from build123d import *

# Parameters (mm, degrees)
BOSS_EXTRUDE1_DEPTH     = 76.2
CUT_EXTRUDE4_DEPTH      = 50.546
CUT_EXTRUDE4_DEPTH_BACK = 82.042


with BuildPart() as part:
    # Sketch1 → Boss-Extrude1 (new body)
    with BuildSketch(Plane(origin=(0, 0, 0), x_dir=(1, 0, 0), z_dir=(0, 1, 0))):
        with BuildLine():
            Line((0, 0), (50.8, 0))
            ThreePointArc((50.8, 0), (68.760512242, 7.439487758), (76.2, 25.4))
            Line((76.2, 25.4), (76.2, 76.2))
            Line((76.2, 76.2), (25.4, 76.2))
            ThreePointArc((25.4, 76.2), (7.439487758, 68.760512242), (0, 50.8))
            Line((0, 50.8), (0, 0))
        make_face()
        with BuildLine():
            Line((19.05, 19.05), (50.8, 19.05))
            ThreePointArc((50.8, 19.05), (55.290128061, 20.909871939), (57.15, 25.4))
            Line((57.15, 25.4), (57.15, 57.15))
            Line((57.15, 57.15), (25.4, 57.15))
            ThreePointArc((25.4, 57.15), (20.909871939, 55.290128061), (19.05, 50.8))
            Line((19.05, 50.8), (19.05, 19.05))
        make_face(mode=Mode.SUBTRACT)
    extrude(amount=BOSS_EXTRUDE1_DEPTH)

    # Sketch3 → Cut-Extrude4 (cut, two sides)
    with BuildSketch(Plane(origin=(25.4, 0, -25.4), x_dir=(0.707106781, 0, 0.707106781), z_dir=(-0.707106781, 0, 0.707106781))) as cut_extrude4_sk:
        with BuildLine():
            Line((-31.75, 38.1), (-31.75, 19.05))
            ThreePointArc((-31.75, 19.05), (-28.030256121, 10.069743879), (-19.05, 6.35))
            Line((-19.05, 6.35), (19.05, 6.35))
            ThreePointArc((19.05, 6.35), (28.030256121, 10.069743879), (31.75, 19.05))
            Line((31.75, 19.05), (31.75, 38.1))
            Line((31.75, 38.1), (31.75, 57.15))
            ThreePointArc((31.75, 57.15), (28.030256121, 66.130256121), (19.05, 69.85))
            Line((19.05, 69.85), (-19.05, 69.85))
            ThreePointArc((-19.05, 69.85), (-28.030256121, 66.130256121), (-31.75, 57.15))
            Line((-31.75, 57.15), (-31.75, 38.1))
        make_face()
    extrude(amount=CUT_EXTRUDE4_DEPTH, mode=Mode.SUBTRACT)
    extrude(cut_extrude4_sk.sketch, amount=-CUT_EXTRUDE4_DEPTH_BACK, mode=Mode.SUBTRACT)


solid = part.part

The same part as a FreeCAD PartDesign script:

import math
import FreeCAD as App
import Part
import Sketcher
from FreeCAD import Vector
Q = App.Units.Quantity

doc = App.newDocument("Part")
body = doc.addObject("PartDesign::Body", "Body")

# Sketch on XZ plane
sketch1 = body.newObject("Sketcher::SketchObject", "Sketch")
sketch1.AttachmentSupport = (doc.getObject("XZ_Plane"), [""])
sketch1.MapMode = "FlatFace"
sketch1.addGeometry([
    Part.LineSegment(Vector(0, 0, 0), Vector(51, 0, 0)),  # 0
    Part.ArcOfCircle(Part.Circle(Vector(51, -25, 0), Vector(0, 0, 1), 25), math.radians(0), math.radians(90)),  # 1
    Part.LineSegment(Vector(76, -25, 0), Vector(76, -76, 0)),  # 2
    Part.LineSegment(Vector(76, -76, 0), Vector(25, -76, 0)),  # 3
    Part.ArcOfCircle(Part.Circle(Vector(25, -51, 0), Vector(0, 0, 1), 25), math.radians(180), math.radians(270)),  # 4
    Part.LineSegment(Vector(0, -51, 0), Vector(0, 0, 0)),  # 5
    Part.LineSegment(Vector(51, -19, 0), Vector(19, -19, 0)),  # 6
    Part.LineSegment(Vector(19, -19, 0), Vector(19, -51, 0)),  # 7
    Part.ArcOfCircle(Part.Circle(Vector(25, -51, 0), Vector(0, 0, 1), 6), math.radians(180), math.radians(270)),  # 8
    Part.LineSegment(Vector(25, -57, 0), Vector(57, -57, 0)),  # 9
    Part.LineSegment(Vector(57, -57, 0), Vector(57, -25, 0)),  # 10
    Part.ArcOfCircle(Part.Circle(Vector(51, -25, 0), Vector(0, 0, 1), 6), math.radians(0), math.radians(90)),  # 11
], False)
sketch1.addConstraint([
    Sketcher.Constraint("Tangent", 0, 2, 1, 2),
    Sketcher.Constraint("Tangent", 1, 1, 2, 1),
    Sketcher.Constraint("Coincident", 2, 2, 3, 1),
    Sketcher.Constraint("Tangent", 3, 2, 4, 2),
    Sketcher.Constraint("Tangent", 4, 1, 5, 1),
    Sketcher.Constraint("Coincident", 5, 2, 0, 1),
    Sketcher.Constraint("Coincident", 6, 2, 7, 1),
    Sketcher.Constraint("Tangent", 7, 2, 8, 1),
    Sketcher.Constraint("Tangent", 8, 2, 9, 1),
    Sketcher.Constraint("Coincident", 9, 2, 10, 1),
    Sketcher.Constraint("Tangent", 10, 2, 11, 1),
    Sketcher.Constraint("Tangent", 11, 2, 6, 1),
    Sketcher.Constraint("Horizontal", 0),
    Sketcher.Constraint("Vertical", 2),
    Sketcher.Constraint("Horizontal", 3),
    Sketcher.Constraint("Vertical", 5),
    Sketcher.Constraint("Horizontal", 6),
    Sketcher.Constraint("Vertical", 7),
    Sketcher.Constraint("Horizontal", 9),
    Sketcher.Constraint("Vertical", 10),
    Sketcher.Constraint("Coincident", 5, 2, -1, 1),
    Sketcher.Constraint("Coincident", 8, 3, 4, 3),
    Sketcher.Constraint("Coincident", 11, 3, 1, 3),
    Sketcher.Constraint("Equal", 1, 4),
    Sketcher.Constraint("Equal", 8, 11),
    Sketcher.Constraint("Equal", 3, 2),
    Sketcher.Constraint("Radius", 1, Q("1 in")),
    Sketcher.Constraint("DistanceX", 0, 1, 0, 2, Q("2 in")),
    Sketcher.Constraint("Radius", 8, Q("0.25 in")),
])
pad1 = body.newObject("PartDesign::Pad", "Pad")
pad1.Profile = sketch1
pad1.Length = Q("3 in")
pad1.Reversed = True

# Sketch on an angled plane
sketch2 = body.newObject("Sketcher::SketchObject", "Sketch001")
sketch2.Placement = App.Placement(Vector(25.4, 0, -25.4), App.Rotation(Vector(0.707106781, 0, 0.707106781), Vector(0, 0.999999999, 0), Vector(-0.707106781, 0, 0.707106781), "ZXY"))
sketch2.addGeometry([
    Part.ArcOfCircle(Part.Circle(Vector(-19, 19, 0), Vector(0, 0, 1), 13), math.radians(180), math.radians(270)),  # 0
    Part.LineSegment(Vector(-19, 6, 0), Vector(19, 6, 0)),  # 1
    Part.ArcOfCircle(Part.Circle(Vector(19, 19, 0), Vector(0, 0, 1), 13), math.radians(-90), math.radians(0)),  # 2
    Part.LineSegment(Vector(32, 19, 0), Vector(32, 57, 0)),  # 3
    Part.ArcOfCircle(Part.Circle(Vector(19, 57, 0), Vector(0, 0, 1), 13), math.radians(0), math.radians(90)),  # 4
    Part.LineSegment(Vector(19, 70, 0), Vector(-19, 70, 0)),  # 5
    Part.ArcOfCircle(Part.Circle(Vector(-19, 57, 0), Vector(0, 0, 1), 13), math.radians(90), math.radians(180)),  # 6
    Part.LineSegment(Vector(-32, 57, 0), Vector(-32, 19, 0)),  # 7
], False)
sketch2.addConstraint([
    Sketcher.Constraint("Tangent", 0, 2, 1, 1),
    Sketcher.Constraint("Tangent", 1, 2, 2, 1),
    Sketcher.Constraint("Tangent", 2, 2, 3, 1),
    Sketcher.Constraint("Tangent", 3, 2, 4, 1),
    Sketcher.Constraint("Tangent", 4, 2, 5, 1),
    Sketcher.Constraint("Tangent", 5, 2, 6, 1),
    Sketcher.Constraint("Tangent", 6, 2, 7, 1),
    Sketcher.Constraint("Tangent", 7, 2, 0, 1),
    Sketcher.Constraint("Horizontal", 1),
    Sketcher.Constraint("Vertical", 3),
    Sketcher.Constraint("Horizontal", 5),
    Sketcher.Constraint("Vertical", 7),
    Sketcher.Constraint("Equal", 0, 2),
    Sketcher.Constraint("Equal", 2, 4),
    Sketcher.Constraint("Equal", 4, 6),
    Sketcher.Constraint("Equal", 5, 3),
    Sketcher.Constraint("Radius", 0, Q("0.5 in")),
    Sketcher.Constraint("DistanceX", 1, 1, 1, 2, Q("1.5 in")),
    Sketcher.Constraint("DistanceX", 0, 3, -1, 1, Q("0.75 in")),
    Sketcher.Constraint("DistanceY", -1, 1, 0, 3, Q("0.75 in")),
])
pocket1 = body.newObject("PartDesign::Pocket", "Pocket")
pocket1.Profile = sketch2
pocket1.Type = "ThroughAll"
pocket1.Midplane = True

doc.recompute()
